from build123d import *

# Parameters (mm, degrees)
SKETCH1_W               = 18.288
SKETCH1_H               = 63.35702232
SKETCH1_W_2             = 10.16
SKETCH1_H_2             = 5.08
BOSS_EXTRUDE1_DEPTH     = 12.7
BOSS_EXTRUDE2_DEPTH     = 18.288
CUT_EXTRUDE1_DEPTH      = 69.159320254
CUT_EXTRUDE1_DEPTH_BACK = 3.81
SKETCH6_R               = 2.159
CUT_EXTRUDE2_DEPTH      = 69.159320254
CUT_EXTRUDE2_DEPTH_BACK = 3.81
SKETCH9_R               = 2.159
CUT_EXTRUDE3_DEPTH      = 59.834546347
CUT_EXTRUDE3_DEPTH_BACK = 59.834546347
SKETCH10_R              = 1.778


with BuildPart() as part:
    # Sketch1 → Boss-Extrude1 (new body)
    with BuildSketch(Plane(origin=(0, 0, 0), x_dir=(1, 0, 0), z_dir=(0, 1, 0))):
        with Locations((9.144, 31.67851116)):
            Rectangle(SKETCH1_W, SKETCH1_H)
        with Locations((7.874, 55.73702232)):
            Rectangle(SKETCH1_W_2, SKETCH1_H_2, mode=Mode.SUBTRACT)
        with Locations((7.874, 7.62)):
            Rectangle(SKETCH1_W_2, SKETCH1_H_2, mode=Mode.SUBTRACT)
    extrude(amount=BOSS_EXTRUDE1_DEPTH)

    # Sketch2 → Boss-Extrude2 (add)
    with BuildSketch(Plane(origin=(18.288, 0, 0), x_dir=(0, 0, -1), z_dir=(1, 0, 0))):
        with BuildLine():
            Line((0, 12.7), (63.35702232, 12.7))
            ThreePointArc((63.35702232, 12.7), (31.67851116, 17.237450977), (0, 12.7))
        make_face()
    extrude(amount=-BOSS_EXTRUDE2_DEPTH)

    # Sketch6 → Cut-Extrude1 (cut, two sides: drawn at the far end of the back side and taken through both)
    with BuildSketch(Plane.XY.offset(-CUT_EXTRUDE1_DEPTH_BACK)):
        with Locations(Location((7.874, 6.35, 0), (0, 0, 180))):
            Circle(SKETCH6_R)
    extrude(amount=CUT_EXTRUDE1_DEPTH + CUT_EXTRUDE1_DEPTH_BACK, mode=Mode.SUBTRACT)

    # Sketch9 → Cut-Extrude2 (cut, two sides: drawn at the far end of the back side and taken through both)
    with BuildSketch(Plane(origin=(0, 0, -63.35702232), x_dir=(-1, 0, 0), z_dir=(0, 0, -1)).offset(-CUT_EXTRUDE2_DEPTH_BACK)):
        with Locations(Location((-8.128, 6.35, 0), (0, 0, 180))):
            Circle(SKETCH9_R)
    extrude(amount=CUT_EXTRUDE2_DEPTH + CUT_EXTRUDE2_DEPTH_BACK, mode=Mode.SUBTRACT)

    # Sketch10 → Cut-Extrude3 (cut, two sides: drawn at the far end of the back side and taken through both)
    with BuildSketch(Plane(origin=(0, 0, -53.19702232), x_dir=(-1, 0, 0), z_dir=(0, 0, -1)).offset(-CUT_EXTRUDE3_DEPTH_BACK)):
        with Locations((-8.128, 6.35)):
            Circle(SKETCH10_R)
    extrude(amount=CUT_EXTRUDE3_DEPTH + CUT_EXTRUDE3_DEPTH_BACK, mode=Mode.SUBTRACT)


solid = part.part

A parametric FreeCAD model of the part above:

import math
import FreeCAD as App
import Part
import Sketcher
Q = App.Units.Quantity

doc = App.newDocument("Part")
body = doc.addObject("PartDesign::Body", "Body")

# Sketch on XZ plane
sketch1 = body.newObject("Sketcher::SketchObject", "Sketch")
sketch1.AttachmentSupport = (doc.getObject("XZ_Plane"), [""])
sketch1.MapMode = "FlatFace"
sketch1.addGeometry([
    Part.LineSegment(App.Vector(0, -63.357022, 0), App.Vector(0, 0, 0)),  # 0
    Part.LineSegment(App.Vector(0, 0, 0), App.Vector(18.288, 0, 0)),  # 1
    Part.LineSegment(App.Vector(18.288, 0, 0), App.Vector(18.288, -63.357022, 0)),  # 2
    Part.LineSegment(App.Vector(18.288, -63.357022, 0), App.Vector(0, -63.357022, 0)),  # 3
    Part.LineSegment(App.Vector(12.954, -5.08, 0), App.Vector(2.794, -5.08, 0)),  # 4
    Part.LineSegment(App.Vector(2.794, -5.08, 0), App.Vector(2.794, -10.16, 0)),  # 5
    Part.LineSegment(App.Vector(2.794, -10.16, 0), App.Vector(12.954, -10.16, 0)),  # 6
    Part.LineSegment(App.Vector(12.954, -10.16, 0), App.Vector(12.954, -5.08, 0)),  # 7
    Part.LineSegment(App.Vector(12.954, -53.197022, 0), App.Vector(2.794, -53.197022, 0)),  # 8
    Part.LineSegment(App.Vector(2.794, -53.197022, 0), App.Vector(2.794, -58.277022, 0)),  # 9
    Part.LineSegment(App.Vector(2.794, -58.277022, 0), App.Vector(12.954, -58.277022, 0)),  # 10
    Part.LineSegment(App.Vector(12.954, -58.277022, 0), App.Vector(12.954, -53.197022, 0)),  # 11
], False)
sketch1.addConstraint([
    Sketcher.Constraint("Coincident", 0, 2, 1, 1),
    Sketcher.Constraint("Coincident", 1, 2, 2, 1),
    Sketcher.Constraint("Coincident", 2, 2, 3, 1),
    Sketcher.Constraint("Coincident", 3, 2, 0, 1),
    Sketcher.Constraint("Coincident", 4, 2, 5, 1),
    Sketcher.Constraint("Coincident", 5, 2, 6, 1),
    Sketcher.Constraint("Coincident", 6, 2, 7, 1),
    Sketcher.Constraint("Coincident", 7, 2, 4, 1),
    Sketcher.Constraint("Coincident", 8, 2, 9, 1),
    Sketcher.Constraint("Coincident", 9, 2, 10, 1),
    Sketcher.Constraint("Coincident", 10, 2, 11, 1),
    Sketcher.Constraint("Coincident", 11, 2, 8, 1),
    Sketcher.Constraint("Vertical", 0),
    Sketcher.Constraint("Horizontal", 1),
    Sketcher.Constraint("Vertical", 2),
    Sketcher.Constraint("Horizontal", 3),
    Sketcher.Constraint("Horizontal", 4),
    Sketcher.Constraint("Vertical", 5),
    Sketcher.Constraint("Horizontal", 6),
    Sketcher.Constraint("Vertical", 7),
    Sketcher.Constraint("Horizontal", 8),
    Sketcher.Constraint("Vertical", 9),
    Sketcher.Constraint("Horizontal", 10),
    Sketcher.Constraint("Vertical", 11),
    Sketcher.Constraint("Coincident", 0, 2, -1, 1),
    Sketcher.Constraint("Vertical", 5, 2, 8, 2),
    Sketcher.Constraint("Vertical", 7, 2, 10, 2),
    Sketcher.Constraint("Equal", 7, 9),
    Sketcher.Constraint("DistanceX", 4, 2, 4, 1, Q("0.4 in")),
    Sketcher.Constraint("DistanceY", 5, 2, 5, 1, Q("0.2 in")),
    Sketcher.Constraint("DistanceX", 1, 1, 1, 2, Q("0.72 in")),
    Sketcher.Constraint("DistanceY", 4, 2, -1, 1, Q("0.2 in")),
    Sketcher.Constraint("DistanceY", 3, 2, 8, 2, Q("0.4 in")),
    Sketcher.Constraint("DistanceX", -1, 1, 4, 2, Q("0.11 in")),
    Sketcher.Constraint("DistanceY", 0, 1, 0, 2, Q("63.357022 mm")),
])
pad1 = body.newObject("PartDesign::Pad", "Pad")
pad1.Profile = sketch1
pad1.Length = Q("0.5 in")
pad1.Reversed = True

# Sketch on YZ plane
sketch2 = body.newObject("Sketcher::SketchObject", "Sketch001")
sketch2.AttachmentSupport = (doc.getObject("YZ_Plane"), [""])
sketch2.MapMode = "FlatFace"
sketch2.AttachmentOffset = App.Placement(App.Vector(0, 0, 0.72 * 25.4), App.Rotation())
sketch2.addGeometry([
    Part.LineSegment(App.Vector(12.7, 0, 0), App.Vector(12.7, -63.357022, 0)),
    Part.ArcOfCircle(Part.Circle(App.Vector(-95.614075, -31.678511, 0), App.Vector(0, 0, 1), 112.851526), math.radians(-16.302563), math.radians(16.302563)),
], False)
sketch2.addConstraint([
    Sketcher.Constraint("Coincident", 0, 1, 1, 2),
    Sketcher.Constraint("Coincident", 1, 1, 0, 2),
    Sketcher.Constraint("Vertical", 0),
    Sketcher.Constraint("PointOnObject", 0, 1, -1),
    Sketcher.Constraint("DistanceX", -1, 1, 0, 1, Q("0.5 in")),
    Sketcher.Constraint("Radius", 1, Q("112.851526 mm")),
    Sketcher.Constraint("DistanceY", 0, 2, 0, 1, Q("63.357022 mm")),
])
pad2 = body.newObject("PartDesign::Pad", "Pad001")
pad2.Profile = sketch2
pad2.Length = Q("0.72 in")
pad2.Reversed = True

# Sketch on XY plane
sketch3 = body.newObject("Sketcher::SketchObject", "Sketch002")
sketch3.AttachmentSupport = (doc.getObject("XY_Plane"), [""])
sketch3.MapMode = "FlatFace"
sketch3.addGeometry(Part.Circle(App.Vector(7.874, 6.35, 0), App.Vector(0, 0, 1), 2.159), False)
sketch3.addConstraint([
    Sketcher.Constraint("Diameter", 0, Q("0.17 in")),
    Sketcher.Constraint("DistanceX", -1, 1, 0, 3, Q("0.31 in")),
    Sketcher.Constraint("DistanceY", -1, 1, 0, 3, Q("0.25 in")),
])
pocket1 = body.newObject("PartDesign::Pocket", "Pocket")
pocket1.Profile = sketch3
pocket1.Type = "TwoLengths"
pocket1.Length = 69.15932
pocket1.Length2 = Q("0.15 in")
pocket1.Reversed = True

# Sketch on XY plane
sketch4 = body.newObject("Sketcher::SketchObject", "Sketch003")
sketch4.AttachmentSupport = (doc.getObject("XY_Plane"), [""])
sketch4.MapMode = "FlatFace"
sketch4.AttachmentOffset = App.Placement(App.Vector(0, 0, -63.357022), App.Rotation())
sketch4.addGeometry(Part.Circle(App.Vector(8.128, 6.35, 0), App.Vector(0, 0, 1), 2.159), False)
sketch4.addConstraint([
    Sketcher.Constraint("Diameter", 0, Q("0.17 in")),
    Sketcher.Constraint("DistanceX", -1, 1, 0, 3, Q("0.32 in")),
    Sketcher.Constraint("DistanceY", -1, 1, 0, 3, Q("0.25 in")),
])
pocket2 = body.newObject("PartDesign::Pocket", "Pocket001")
pocket2.Profile = sketch4
pocket2.Type = "TwoLengths"
pocket2.Length = 69.15932
pocket2.Length2 = Q("0.15 in")

# Sketch on XY plane
sketch5 = body.newObject("Sketcher::SketchObject", "Sketch004")
sketch5.AttachmentSupport = (doc.getObject("XY_Plane"), [""])
sketch5.MapMode = "FlatFace"
sketch5.AttachmentOffset = App.Placement(App.Vector(0, 0, -53.197022), App.Rotation())
sketch5.addGeometry(Part.Circle(App.Vector(8.128, 6.35, 0), App.Vector(0, 0, 1), 1.778), False)
sketch5.addConstraint([
    Sketcher.Constraint("Diameter", 0, Q("0.14 in")),
    Sketcher.Constraint("DistanceX", -1, 1, 0, 3, Q("0.32 in")),
    Sketcher.Constraint("DistanceY", -1, 1, 0, 3, Q("0.25 in")),
])
pocket3 = body.newObject("PartDesign::Pocket", "Pocket002")
pocket3.Profile = sketch5
pocket3.Type = "ThroughAll"
pocket3.Midplane = True

doc.recompute()
